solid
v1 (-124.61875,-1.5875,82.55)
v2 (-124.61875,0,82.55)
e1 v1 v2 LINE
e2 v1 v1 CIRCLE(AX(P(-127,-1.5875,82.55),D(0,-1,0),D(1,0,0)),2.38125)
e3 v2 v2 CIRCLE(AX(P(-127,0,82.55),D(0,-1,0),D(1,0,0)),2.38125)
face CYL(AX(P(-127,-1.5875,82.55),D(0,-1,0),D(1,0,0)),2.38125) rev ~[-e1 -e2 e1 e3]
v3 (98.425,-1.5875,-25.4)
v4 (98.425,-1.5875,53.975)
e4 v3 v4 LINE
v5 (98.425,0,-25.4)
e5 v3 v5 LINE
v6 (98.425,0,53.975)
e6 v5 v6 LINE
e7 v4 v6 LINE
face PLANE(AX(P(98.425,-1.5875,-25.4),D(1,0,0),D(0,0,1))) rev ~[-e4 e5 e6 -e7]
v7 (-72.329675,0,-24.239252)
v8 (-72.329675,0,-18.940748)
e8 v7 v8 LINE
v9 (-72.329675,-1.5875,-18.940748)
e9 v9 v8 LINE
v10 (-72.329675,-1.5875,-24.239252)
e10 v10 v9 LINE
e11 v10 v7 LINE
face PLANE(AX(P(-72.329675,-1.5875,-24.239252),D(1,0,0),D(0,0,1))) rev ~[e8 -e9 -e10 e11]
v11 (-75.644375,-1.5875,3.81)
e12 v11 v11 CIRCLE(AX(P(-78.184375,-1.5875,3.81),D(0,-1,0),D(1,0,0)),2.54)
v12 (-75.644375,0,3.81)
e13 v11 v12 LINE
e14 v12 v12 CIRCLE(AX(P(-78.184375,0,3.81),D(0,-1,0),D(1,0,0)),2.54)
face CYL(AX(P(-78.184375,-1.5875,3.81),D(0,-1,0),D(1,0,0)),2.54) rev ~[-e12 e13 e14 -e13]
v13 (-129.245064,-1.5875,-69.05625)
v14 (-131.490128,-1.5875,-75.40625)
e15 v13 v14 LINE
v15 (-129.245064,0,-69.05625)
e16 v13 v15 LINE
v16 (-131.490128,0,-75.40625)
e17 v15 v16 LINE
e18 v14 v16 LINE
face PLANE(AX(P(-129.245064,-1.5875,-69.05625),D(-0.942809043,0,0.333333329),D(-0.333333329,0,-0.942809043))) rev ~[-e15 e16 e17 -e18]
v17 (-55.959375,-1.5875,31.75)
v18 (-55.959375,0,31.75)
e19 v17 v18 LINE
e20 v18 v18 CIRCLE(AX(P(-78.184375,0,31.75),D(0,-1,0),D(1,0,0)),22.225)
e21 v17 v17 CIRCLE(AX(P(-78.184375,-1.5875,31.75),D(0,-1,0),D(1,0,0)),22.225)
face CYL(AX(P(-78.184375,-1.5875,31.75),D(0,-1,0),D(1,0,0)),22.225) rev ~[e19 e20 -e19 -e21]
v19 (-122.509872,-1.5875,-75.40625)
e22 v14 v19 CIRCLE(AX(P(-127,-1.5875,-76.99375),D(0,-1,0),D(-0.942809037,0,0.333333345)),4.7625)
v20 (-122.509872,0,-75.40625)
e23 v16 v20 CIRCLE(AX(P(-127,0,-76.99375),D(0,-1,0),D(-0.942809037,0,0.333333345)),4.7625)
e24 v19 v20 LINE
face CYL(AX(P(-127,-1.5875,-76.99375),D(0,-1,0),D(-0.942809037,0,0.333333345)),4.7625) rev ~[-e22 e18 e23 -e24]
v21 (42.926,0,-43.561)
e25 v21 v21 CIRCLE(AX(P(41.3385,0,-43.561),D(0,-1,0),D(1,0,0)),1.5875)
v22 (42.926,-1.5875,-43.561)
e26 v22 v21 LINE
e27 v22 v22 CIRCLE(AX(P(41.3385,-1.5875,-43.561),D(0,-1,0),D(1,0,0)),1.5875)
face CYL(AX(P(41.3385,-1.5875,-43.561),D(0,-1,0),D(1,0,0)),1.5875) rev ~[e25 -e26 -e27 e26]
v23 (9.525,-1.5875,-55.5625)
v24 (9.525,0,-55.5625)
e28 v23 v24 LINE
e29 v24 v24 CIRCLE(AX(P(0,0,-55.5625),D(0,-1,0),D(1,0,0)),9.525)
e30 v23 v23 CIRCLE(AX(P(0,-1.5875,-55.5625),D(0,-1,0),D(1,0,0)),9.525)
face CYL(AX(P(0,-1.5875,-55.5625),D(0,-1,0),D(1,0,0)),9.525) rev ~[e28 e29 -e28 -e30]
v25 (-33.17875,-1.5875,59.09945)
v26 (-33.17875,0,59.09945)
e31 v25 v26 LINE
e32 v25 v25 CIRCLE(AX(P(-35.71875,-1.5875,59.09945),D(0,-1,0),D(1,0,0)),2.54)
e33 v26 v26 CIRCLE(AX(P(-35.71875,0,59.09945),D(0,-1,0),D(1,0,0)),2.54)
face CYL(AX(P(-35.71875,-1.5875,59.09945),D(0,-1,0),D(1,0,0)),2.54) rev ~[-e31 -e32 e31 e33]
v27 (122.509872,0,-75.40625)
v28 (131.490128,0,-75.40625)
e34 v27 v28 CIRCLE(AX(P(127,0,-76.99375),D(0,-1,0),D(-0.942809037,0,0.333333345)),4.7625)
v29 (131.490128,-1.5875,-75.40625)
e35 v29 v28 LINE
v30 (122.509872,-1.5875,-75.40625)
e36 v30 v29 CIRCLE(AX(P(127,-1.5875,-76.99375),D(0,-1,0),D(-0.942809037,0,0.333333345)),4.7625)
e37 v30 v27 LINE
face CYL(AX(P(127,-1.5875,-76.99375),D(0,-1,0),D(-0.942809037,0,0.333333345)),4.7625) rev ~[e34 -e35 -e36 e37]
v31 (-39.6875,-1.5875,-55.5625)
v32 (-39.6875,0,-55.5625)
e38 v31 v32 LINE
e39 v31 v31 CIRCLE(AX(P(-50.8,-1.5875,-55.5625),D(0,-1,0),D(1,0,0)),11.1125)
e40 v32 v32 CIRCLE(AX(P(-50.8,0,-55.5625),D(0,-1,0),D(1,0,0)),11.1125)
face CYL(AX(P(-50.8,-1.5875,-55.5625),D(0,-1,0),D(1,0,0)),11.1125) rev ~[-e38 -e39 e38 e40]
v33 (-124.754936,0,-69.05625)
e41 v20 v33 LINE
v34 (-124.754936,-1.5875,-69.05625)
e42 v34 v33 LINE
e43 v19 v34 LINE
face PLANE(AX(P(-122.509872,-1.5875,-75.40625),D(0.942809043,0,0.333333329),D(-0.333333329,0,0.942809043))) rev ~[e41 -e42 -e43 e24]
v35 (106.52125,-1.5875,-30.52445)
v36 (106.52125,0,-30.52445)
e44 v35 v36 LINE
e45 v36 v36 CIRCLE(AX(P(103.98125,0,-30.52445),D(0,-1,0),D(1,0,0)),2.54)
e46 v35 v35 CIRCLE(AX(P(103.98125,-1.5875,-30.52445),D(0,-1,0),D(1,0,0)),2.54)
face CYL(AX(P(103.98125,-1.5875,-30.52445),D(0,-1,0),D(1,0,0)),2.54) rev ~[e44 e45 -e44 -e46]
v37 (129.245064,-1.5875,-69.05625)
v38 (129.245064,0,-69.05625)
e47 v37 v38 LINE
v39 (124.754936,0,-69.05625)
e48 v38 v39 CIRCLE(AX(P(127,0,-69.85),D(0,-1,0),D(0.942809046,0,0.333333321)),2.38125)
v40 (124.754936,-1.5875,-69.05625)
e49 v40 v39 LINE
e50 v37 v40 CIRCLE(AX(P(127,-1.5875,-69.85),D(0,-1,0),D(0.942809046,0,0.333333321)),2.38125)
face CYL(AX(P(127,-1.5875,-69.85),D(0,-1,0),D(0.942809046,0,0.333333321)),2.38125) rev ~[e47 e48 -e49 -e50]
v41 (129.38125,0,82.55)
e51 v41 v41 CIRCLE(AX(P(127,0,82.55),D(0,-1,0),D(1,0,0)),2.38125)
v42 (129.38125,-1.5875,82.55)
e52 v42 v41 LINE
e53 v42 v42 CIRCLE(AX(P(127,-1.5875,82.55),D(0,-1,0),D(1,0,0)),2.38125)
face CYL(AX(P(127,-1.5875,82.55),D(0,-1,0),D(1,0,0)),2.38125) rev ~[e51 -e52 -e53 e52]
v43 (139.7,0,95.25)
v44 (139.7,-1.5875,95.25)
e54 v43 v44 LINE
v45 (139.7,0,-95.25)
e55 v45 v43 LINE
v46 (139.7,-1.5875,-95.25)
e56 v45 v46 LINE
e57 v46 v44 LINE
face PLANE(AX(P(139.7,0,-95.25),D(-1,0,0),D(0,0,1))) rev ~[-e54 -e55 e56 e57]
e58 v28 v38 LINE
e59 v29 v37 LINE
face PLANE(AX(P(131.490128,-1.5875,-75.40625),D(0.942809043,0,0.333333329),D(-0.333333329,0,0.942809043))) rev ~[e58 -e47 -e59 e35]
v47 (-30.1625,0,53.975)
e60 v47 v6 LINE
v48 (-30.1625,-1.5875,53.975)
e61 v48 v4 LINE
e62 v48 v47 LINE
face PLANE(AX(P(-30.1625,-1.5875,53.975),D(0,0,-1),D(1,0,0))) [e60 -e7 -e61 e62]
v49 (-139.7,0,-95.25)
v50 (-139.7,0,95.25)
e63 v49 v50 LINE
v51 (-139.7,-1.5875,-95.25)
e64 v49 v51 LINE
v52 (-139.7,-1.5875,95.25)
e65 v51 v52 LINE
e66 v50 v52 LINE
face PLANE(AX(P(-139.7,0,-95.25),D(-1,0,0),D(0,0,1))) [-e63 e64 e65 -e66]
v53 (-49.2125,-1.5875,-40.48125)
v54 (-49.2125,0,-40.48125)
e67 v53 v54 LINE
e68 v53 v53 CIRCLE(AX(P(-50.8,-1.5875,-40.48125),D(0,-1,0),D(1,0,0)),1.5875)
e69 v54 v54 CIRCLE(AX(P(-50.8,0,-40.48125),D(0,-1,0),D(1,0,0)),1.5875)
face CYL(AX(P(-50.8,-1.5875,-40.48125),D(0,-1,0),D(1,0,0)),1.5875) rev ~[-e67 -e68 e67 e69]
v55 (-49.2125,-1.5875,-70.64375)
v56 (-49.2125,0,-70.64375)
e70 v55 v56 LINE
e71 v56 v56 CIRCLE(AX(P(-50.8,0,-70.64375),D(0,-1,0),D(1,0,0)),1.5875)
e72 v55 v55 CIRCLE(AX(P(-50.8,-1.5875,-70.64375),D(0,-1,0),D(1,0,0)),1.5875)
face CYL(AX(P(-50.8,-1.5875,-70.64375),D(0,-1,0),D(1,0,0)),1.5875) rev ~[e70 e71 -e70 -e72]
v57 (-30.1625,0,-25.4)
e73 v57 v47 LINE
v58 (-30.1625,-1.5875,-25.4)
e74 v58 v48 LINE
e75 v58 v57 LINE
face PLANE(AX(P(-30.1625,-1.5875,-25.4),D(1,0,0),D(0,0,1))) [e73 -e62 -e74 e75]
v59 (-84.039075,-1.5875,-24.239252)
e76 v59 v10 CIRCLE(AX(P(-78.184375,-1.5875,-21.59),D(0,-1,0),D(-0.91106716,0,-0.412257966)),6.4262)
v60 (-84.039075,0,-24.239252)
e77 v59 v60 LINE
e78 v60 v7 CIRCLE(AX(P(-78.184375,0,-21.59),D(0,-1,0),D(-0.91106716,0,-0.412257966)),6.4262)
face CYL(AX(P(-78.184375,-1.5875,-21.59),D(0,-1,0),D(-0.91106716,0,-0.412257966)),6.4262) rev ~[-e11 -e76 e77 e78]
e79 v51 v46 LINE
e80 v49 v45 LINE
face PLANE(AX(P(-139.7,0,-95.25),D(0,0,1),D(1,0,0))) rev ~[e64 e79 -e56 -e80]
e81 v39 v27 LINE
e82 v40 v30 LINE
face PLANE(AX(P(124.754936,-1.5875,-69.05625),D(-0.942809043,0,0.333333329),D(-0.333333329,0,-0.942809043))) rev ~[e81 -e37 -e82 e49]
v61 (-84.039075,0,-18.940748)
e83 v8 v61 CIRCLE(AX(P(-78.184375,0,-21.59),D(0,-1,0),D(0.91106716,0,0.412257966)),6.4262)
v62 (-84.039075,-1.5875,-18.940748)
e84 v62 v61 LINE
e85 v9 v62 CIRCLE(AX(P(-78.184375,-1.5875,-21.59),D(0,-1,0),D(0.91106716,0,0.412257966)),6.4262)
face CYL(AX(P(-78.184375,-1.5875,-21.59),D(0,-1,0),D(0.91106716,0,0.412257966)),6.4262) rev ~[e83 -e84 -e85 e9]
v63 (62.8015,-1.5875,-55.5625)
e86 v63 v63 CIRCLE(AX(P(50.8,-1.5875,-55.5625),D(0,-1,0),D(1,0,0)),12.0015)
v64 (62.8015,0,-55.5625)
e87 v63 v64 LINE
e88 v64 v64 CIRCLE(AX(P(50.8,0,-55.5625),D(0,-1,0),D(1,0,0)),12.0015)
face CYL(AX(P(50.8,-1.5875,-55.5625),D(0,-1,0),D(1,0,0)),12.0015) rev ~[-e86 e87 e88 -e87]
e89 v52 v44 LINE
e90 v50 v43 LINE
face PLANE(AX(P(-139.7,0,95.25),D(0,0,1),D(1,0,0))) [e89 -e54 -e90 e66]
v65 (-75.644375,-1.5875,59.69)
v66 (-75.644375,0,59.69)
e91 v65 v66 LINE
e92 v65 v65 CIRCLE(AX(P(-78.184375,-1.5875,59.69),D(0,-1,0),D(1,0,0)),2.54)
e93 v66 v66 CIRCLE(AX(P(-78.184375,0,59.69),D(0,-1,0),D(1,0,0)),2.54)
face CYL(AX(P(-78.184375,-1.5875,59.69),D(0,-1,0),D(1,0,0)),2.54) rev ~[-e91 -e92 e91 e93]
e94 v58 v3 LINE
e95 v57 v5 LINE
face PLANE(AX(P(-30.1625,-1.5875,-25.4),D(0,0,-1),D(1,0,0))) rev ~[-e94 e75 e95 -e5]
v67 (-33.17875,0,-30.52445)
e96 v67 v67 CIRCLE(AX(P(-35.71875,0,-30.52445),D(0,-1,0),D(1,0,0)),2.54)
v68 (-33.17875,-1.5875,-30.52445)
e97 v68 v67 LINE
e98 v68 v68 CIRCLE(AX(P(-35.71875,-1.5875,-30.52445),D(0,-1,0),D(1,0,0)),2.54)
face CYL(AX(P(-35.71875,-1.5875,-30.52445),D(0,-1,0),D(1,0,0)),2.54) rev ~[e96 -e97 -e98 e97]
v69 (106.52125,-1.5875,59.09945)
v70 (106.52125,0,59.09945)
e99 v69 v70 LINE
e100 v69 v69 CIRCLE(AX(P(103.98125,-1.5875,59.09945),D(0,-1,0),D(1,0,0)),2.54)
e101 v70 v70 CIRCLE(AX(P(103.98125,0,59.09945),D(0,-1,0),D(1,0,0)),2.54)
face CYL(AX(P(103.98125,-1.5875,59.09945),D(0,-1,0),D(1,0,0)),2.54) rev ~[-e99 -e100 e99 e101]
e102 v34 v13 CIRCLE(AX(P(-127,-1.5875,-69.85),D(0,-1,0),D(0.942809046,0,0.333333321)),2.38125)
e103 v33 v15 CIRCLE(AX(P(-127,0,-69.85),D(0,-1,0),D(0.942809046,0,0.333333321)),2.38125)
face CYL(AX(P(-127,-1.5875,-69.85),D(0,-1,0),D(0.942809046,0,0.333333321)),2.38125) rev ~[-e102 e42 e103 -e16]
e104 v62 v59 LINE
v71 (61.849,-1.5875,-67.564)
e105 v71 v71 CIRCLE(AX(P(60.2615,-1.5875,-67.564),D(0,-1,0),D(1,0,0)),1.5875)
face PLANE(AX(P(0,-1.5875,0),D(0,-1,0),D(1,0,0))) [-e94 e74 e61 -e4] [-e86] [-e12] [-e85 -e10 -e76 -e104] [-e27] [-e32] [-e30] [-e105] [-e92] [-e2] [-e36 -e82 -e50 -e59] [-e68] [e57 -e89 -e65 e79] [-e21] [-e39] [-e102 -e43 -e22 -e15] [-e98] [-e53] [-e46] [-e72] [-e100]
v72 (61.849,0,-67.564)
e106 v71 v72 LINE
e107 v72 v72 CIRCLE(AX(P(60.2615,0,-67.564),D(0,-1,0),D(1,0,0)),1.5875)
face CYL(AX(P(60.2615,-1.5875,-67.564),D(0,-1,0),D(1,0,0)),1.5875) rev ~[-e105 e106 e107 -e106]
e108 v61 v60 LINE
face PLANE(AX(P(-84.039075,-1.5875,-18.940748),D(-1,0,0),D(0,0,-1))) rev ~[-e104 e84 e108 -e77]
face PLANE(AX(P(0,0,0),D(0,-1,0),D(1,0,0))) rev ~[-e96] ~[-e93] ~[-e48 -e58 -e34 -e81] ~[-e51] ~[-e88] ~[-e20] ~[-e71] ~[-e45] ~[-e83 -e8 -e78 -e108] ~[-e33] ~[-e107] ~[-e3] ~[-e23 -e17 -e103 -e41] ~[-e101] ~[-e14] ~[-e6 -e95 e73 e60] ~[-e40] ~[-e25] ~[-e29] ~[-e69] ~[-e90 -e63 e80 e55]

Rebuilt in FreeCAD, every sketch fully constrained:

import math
import FreeCAD as App
import Part
import Sketcher

V = App.Vector
Q = App.Units.Quantity

doc = App.newDocument("Part")
params = doc.addObject("Spreadsheet::Sheet", "Params")
for row, (alias, value) in enumerate([
    ("sketch1_width", "11 in"),
    ("sketch1_height", "7.5 in"),
    ("pad1_length", "0.0625 in"),
    ("sketch2_diameter", "0.2 in"),
    ("sketch2_width", "5.0625 in"),
    ("sketch2_height", "3.125 in"),
    ("pocket1_length", "1 in"),
    ("sketch3_diameter", "0.2 in"),
    ("sketch3_diameter2", "1.75 in"),
    ("pocket2_length", "1 in"),
    ("sketch4_diameter", "0.75 in"),
    ("sketch4_diameter2", "0.945 in"),
    ("sketch4_diameter3", "0.125 in"),
    ("sketch4_diameter4", "0.875 in"),
    ("sketch4_radius", "0.253 in"),
    ("pocket3_length", "1 in"),
    ("sketch5_diameter", "0.1875 in"),
    ("sketch5_radius", "0.1875 in"),
    ("pocket4_length", "1 in"),
], start=1):
    params.set(f"A{row}", alias)
    params.set(f"B{row}", "=" + value)
    params.setAlias(f"B{row}", alias)

body = doc.addObject("PartDesign::Body", "Body")

sketch1 = doc.addObject("Sketcher::SketchObject", "Sketch")
body.addObject(sketch1)
sketch1.AttachmentSupport = (doc.XZ_Plane, [""])
sketch1.MapMode = "FlatFace"
sketch1.addGeometry([
    Part.LineSegment(V(-140, 95, 0), V(-140, -95, 0)),
    Part.LineSegment(V(-140, -95, 0), V(140, -95, 0)),
    Part.LineSegment(V(140, -95, 0), V(140, 95, 0)),
    Part.LineSegment(V(140, 95, 0), V(-140, 95, 0)),
], False)
sketch1.addConstraint([
    Sketcher.Constraint("Coincident", 0, 2, 1, 1),
    Sketcher.Constraint("Coincident", 1, 2, 2, 1),
    Sketcher.Constraint("Coincident", 2, 2, 3, 1),
    Sketcher.Constraint("Coincident", 3, 2, 0, 1),
    Sketcher.Constraint("Vertical", 0),
    Sketcher.Constraint("Horizontal", 1),
    Sketcher.Constraint("Vertical", 2),
    Sketcher.Constraint("Horizontal", 3),
    Sketcher.Constraint("Symmetric", 0, 2, 2, 2, -1, 1),
    Sketcher.Constraint("DistanceX", 1, 1, 1, 2, Q("11 in")),
    Sketcher.Constraint("DistanceY", 0, 2, 0, 1, Q("7.5 in")),
])
sketch1.setExpression("Constraints[9]", "Params.sketch1_width")
sketch1.setExpression("Constraints[10]", "Params.sketch1_height")
pad1 = doc.addObject("PartDesign::Pad", "Pad")
body.addObject(pad1)
pad1.Profile = sketch1
pad1.setExpression("Length", "Params.pad1_length")

sketch2 = doc.addObject("Sketcher::SketchObject", "Sketch001")
body.addObject(sketch2)
sketch2.AttachmentSupport = (doc.XZ_Plane, [""])
sketch2.MapMode = "FlatFace"
sketch2.AttachmentOffset = App.Placement(V(0, 0, 0.0625 * 25.4), App.Rotation())
sketch2.addGeometry([
    Part.LineSegment(V(-30.2, 54, 0), V(-30.2, -25.4, 0)),
    Part.LineSegment(V(-30.2, -25.4, 0), V(98.4, -25.4, 0)),
    Part.LineSegment(V(98.4, -25.4, 0), V(98.4, 54, 0)),
    Part.LineSegment(V(98.4, 54, 0), V(-30.2, 54, 0)),
    Part.Circle(V(-35.7, 59.1, 0), V(0, 0, 1), 2.5),
    Part.Circle(V(104, 59.1, 0), V(0, 0, 1), 2.5),
    Part.Circle(V(104, -30.5, 0), V(0, 0, 1), 2.5),
    Part.Circle(V(-35.7, -30.5, 0), V(0, 0, 1), 2.5),
], False)
sketch2.addConstraint([
    Sketcher.Constraint("Coincident", 0, 2, 1, 1),
    Sketcher.Constraint("Coincident", 1, 2, 2, 1),
    Sketcher.Constraint("Coincident", 2, 2, 3, 1),
    Sketcher.Constraint("Coincident", 3, 2, 0, 1),
    Sketcher.Constraint("Vertical", 0),
    Sketcher.Constraint("Horizontal", 1),
    Sketcher.Constraint("Vertical", 2),
    Sketcher.Constraint("Horizontal", 3),
    Sketcher.Constraint("Equal", 4, 5),
    Sketcher.Constraint("Equal", 5, 6),
    Sketcher.Constraint("Equal", 6, 7),
    Sketcher.Constraint("Horizontal", 4, 3, 5, 3),
    Sketcher.Constraint("Horizontal", 6, 3, 7, 3),
    Sketcher.Constraint("Vertical", 5, 3, 6, 3),
    Sketcher.Constraint("Vertical", 4, 3, 7, 3),
    Sketcher.Constraint("Diameter", 4, Q("0.2 in")),
    Sketcher.Constraint("DistanceY", 0, 2, -1, 1, Q("1 in")),
    Sketcher.Constraint("DistanceX", 4, 3, 5, 3, Q("5.5 in")),
    Sketcher.Constraint("DistanceX", 1, 1, 1, 2, Q("5.0625 in")),
    Sketcher.Constraint("DistanceY", 0, 2, 0, 1, Q("3.125 in")),
    Sketcher.Constraint("DistanceX", 4, 3, -1, 1, Q("1.40625 in")),
    Sketcher.Constraint("DistanceX", 0, 2, -1, 1, Q("1.1875 in")),
    Sketcher.Constraint("DistanceY", 6, 3, 5, 3, Q("3.5285 in")),
    Sketcher.Constraint("DistanceY", -1, 1, 4, 3, Q("59.09945 mm")),
])
sketch2.setExpression("Constraints[15]", "Params.sketch2_diameter")
sketch2.setExpression("Constraints[18]", "Params.sketch2_width")
sketch2.setExpression("Constraints[19]", "Params.sketch2_height")
pocket1 = doc.addObject("PartDesign::Pocket", "Pocket")
body.addObject(pocket1)
pocket1.Profile = sketch2
pocket1.setExpression("Length", "Params.pocket1_length")

sketch3 = doc.addObject("Sketcher::SketchObject", "Sketch002")
body.addObject(sketch3)
sketch3.AttachmentSupport = (doc.XZ_Plane, [""])
sketch3.MapMode = "FlatFace"
sketch3.AttachmentOffset = App.Placement(V(0, 0, 0.0625 * 25.4), App.Rotation())
sketch3.addGeometry([
    Part.Circle(V(-78.2, 31.8, 0), V(0, 0, 1), 22.2),
    Part.Circle(V(-78.2, 59.7, 0), V(0, 0, 1), 2.5),
    Part.Circle(V(-78.2, 3.8, 0), V(0, 0, 1), 2.5),
], False)
sketch3.addConstraint([
    Sketcher.Constraint("Equal", 1, 2),
    Sketcher.Constraint("Vertical", 0, 3, 1, 3),
    Sketcher.Constraint("Vertical", 1, 3, 2, 3),
    Sketcher.Constraint("Diameter", 1, Q("0.2 in")),
    Sketcher.Constraint("Diameter", 0, Q("1.75 in")),
    Sketcher.Constraint("DistanceY", 0, 3, 1, 3, Q("1.1 in")),
    Sketcher.Constraint("DistanceY", 2, 3, 0, 3, Q("1.1 in")),
    Sketcher.Constraint("DistanceY", -1, 1, 0, 3, Q("1.25 in")),
    Sketcher.Constraint("DistanceX", 0, 3, -1, 1, Q("3.078125 in")),
])
sketch3.setExpression("Constraints[3]", "Params.sketch3_diameter")
sketch3.setExpression("Constraints[4]", "Params.sketch3_diameter2")
pocket2 = doc.addObject("PartDesign::Pocket", "Pocket001")
body.addObject(pocket2)
pocket2.Profile = sketch3
pocket2.setExpression("Length", "Params.pocket2_length")

sketch4 = doc.addObject("Sketcher::SketchObject", "Sketch003")
body.addObject(sketch4)
sketch4.AttachmentSupport = (doc.XZ_Plane, [""])
sketch4.MapMode = "FlatFace"
sketch4.AttachmentOffset = App.Placement(V(0, 0, 0.0625 * 25.4), App.Rotation())
sketch4.addGeometry([
    Part.Circle(V(50.8, -55.6, 0), V(0, 0, 1), 12),
    Part.Circle(V(41.3, -43.6, 0), V(0, 0, 1), 1.6),
    Part.Circle(V(60.3, -67.6, 0), V(0, 0, 1), 1.6),
    Part.Circle(V(0, -55.6, 0), V(0, 0, 1), 9.5),
    Part.LineSegment(V(-84, -18.9, 0), V(-84, -24.2, 0)),
    Part.ArcOfCircle(Part.Circle(V(-78.2, -21.6, 0), V(0, 0, 1), 6.4), math.radians(-156), math.radians(-24)),
    Part.LineSegment(V(-72.3, -24.2, 0), V(-72.3, -18.9, 0)),
    Part.ArcOfCircle(Part.Circle(V(-78.2, -21.6, 0), V(0, 0, 1), 6.4), math.radians(24), math.radians(156)),
    Part.Circle(V(-50.8, -55.6, 0), V(0, 0, 1), 11.1),
    Part.Circle(V(-50.8, -40.5, 0), V(0, 0, 1), 1.6),
    Part.Circle(V(-50.8, -70.6, 0), V(0, 0, 1), 1.6),
], False)
sketch4.addConstraint([
    Sketcher.Constraint("Coincident", 4, 2, 5, 1),
    Sketcher.Constraint("Coincident", 5, 2, 6, 1),
    Sketcher.Constraint("Coincident", 6, 2, 7, 1),
    Sketcher.Constraint("Coincident", 7, 2, 4, 1),
    Sketcher.Constraint("Vertical", 4),
    Sketcher.Constraint("Vertical", 6),
    Sketcher.Constraint("Coincident", 7, 3, 5, 3),
    Sketcher.Constraint("Equal", 1, 2),
    Sketcher.Constraint("Equal", 5, 7),
    Sketcher.Constraint("Equal", 2, 9),
    Sketcher.Constraint("Equal", 9, 10),
    Sketcher.Constraint("Symmetric", 0, 3, 8, 3, -2),
    Sketcher.Constraint("PointOnObject", 3, 3, -2),
    Sketcher.Constraint("Horizontal", 0, 3, 3, 3),
    Sketcher.Constraint("Horizontal", 4, 2, 5, 2),
    Sketcher.Constraint("Vertical", 8, 3, 9, 3),
    Sketcher.Constraint("Vertical", 9, 3, 10, 3),
    Sketcher.Constraint("Diameter", 3, Q("0.75 in")),
    Sketcher.Constraint("Diameter", 0, Q("0.945 in")),
    Sketcher.Constraint("Diameter", 1, Q("0.125 in")),
    Sketcher.Constraint("Diameter", 8, Q("0.875 in")),
    Sketcher.Constraint("DistanceX", -1, 1, 0, 3, Q("2 in")),
    Sketcher.Constraint("Radius", 5, Q("0.253 in")),
    Sketcher.Constraint("DistanceY", 2, 3, -1, 1, Q("2.66 in")),
    Sketcher.Constraint("DistanceY", 5, 3, -1, 1, Q("0.85 in")),
    Sketcher.Constraint("DistanceY", 0, 3, -1, 1, Q("2.1875 in")),
    Sketcher.Constraint("DistanceY", 1, 3, -1, 1, Q("1.715 in")),
    Sketcher.Constraint("DistanceX", 5, 3, -1, 1, Q("3.078125 in")),
    Sketcher.Constraint("DistanceY", 9, 3, -1, 1, Q("1.59375 in")),
    Sketcher.Constraint("DistanceY", 10, 3, -1, 1, Q("2.78125 in")),
    Sketcher.Constraint("DistanceX", 1, 3, 2, 3, Q("0.745 in")),
    Sketcher.Constraint("DistanceX", 4, 2, 5, 2, Q("0.461 in")),
    Sketcher.Constraint("DistanceX", -1, 1, 1, 3, Q("1.6275 in")),
])
sketch4.setExpression("Constraints[17]", "Params.sketch4_diameter")
sketch4.setExpression("Constraints[18]", "Params.sketch4_diameter2")
sketch4.setExpression("Constraints[19]", "Params.sketch4_diameter3")
sketch4.setExpression("Constraints[20]", "Params.sketch4_diameter4")
sketch4.setExpression("Constraints[22]", "Params.sketch4_radius")
pocket3 = doc.addObject("PartDesign::Pocket", "Pocket002")
body.addObject(pocket3)
pocket3.Profile = sketch4
pocket3.setExpression("Length", "Params.pocket3_length")

sketch5 = doc.addObject("Sketcher::SketchObject", "Sketch004")
body.addObject(sketch5)
sketch5.AttachmentSupport = (doc.XZ_Plane, [""])
sketch5.MapMode = "FlatFace"
sketch5.AttachmentOffset = App.Placement(V(0, 0, 0.0625 * 25.4), App.Rotation())
sketch5.addGeometry([
    Part.Circle(V(-127, 82.5, 0), V(0, 0, 1), 2.4),
    Part.Circle(V(127, 82.5, 0), V(0, 0, 1), 2.4),
    Part.LineSegment(V(-122.5, -75.4, 0), V(-124.8, -69.1, 0)),
    Part.ArcOfCircle(Part.Circle(V(-127, -69.8, 0), V(0, 0, 1), 2.4), math.radians(19), math.radians(161)),
    Part.LineSegment(V(-129.2, -69.1, 0), V(-131.5, -75.4, 0)),
    Part.ArcOfCircle(Part.Circle(V(-127, -77, 0), V(0, 0, 1), 4.8), math.radians(161), math.radians(379)),
    Part.LineSegment(V(131.5, -75.4, 0), V(129.2, -69.1, 0)),
    Part.ArcOfCircle(Part.Circle(V(127, -69.8, 0), V(0, 0, 1), 2.4), math.radians(19), math.radians(161)),
    Part.LineSegment(V(124.8, -69.1, 0), V(122.5, -75.4, 0)),
    Part.ArcOfCircle(Part.Circle(V(127, -77, 0), V(0, 0, 1), 4.8), math.radians(161), math.radians(379)),
], False)
sketch5.addConstraint([
    Sketcher.Constraint("Tangent", 2, 2, 3, 1),
    Sketcher.Constraint("Tangent", 3, 2, 4, 1),
    Sketcher.Constraint("Tangent", 4, 2, 5, 1),
    Sketcher.Constraint("Tangent", 5, 2, 2, 1),
    Sketcher.Constraint("Tangent", 6, 2, 7, 1),
    Sketcher.Constraint("Tangent", 7, 2, 8, 1),
    Sketcher.Constraint("Tangent", 8, 2, 9, 1),
    Sketcher.Constraint("Tangent", 9, 2, 6, 1),
    Sketcher.Constraint("Equal", 0, 1),
    Sketcher.Constraint("Equal", 1, 3),
    Sketcher.Constraint("Equal", 3, 7),
    Sketcher.Constraint("Equal", 5, 9),
    Sketcher.Constraint("Symmetric", 0, 3, 1, 3, -2),
    Sketcher.Constraint("Symmetric", 3, 3, 7, 3, -2),
    Sketcher.Constraint("Symmetric", 5, 3, 9, 3, -2),
    Sketcher.Constraint("Parallel", 2, 6),
    Sketcher.Constraint("Vertical", 0, 3, 3, 3),
    Sketcher.Constraint("Diameter", 0, Q("0.1875 in")),
    Sketcher.Constraint("DistanceX", 0, 3, -1, 1, Q("5 in")),
    Sketcher.Constraint("Radius", 5, Q("0.1875 in")),
    Sketcher.Constraint("DistanceY", 3, 3, 0, 3, Q("6 in")),
    Sketcher.Constraint("DistanceY", -1, 1, 0, 3, Q("3.25 in")),
    Sketcher.Constraint("DistanceY", 4, 2, 3, 2, Q("0.25 in")),
])
sketch5.setExpression("Constraints[17]", "Params.sketch5_diameter")
sketch5.setExpression("Constraints[19]", "Params.sketch5_radius")
pocket4 = doc.addObject("PartDesign::Pocket", "Pocket003")
body.addObject(pocket4)
pocket4.Profile = sketch5
pocket4.setExpression("Length", "Params.pocket4_length")

doc.recompute()
